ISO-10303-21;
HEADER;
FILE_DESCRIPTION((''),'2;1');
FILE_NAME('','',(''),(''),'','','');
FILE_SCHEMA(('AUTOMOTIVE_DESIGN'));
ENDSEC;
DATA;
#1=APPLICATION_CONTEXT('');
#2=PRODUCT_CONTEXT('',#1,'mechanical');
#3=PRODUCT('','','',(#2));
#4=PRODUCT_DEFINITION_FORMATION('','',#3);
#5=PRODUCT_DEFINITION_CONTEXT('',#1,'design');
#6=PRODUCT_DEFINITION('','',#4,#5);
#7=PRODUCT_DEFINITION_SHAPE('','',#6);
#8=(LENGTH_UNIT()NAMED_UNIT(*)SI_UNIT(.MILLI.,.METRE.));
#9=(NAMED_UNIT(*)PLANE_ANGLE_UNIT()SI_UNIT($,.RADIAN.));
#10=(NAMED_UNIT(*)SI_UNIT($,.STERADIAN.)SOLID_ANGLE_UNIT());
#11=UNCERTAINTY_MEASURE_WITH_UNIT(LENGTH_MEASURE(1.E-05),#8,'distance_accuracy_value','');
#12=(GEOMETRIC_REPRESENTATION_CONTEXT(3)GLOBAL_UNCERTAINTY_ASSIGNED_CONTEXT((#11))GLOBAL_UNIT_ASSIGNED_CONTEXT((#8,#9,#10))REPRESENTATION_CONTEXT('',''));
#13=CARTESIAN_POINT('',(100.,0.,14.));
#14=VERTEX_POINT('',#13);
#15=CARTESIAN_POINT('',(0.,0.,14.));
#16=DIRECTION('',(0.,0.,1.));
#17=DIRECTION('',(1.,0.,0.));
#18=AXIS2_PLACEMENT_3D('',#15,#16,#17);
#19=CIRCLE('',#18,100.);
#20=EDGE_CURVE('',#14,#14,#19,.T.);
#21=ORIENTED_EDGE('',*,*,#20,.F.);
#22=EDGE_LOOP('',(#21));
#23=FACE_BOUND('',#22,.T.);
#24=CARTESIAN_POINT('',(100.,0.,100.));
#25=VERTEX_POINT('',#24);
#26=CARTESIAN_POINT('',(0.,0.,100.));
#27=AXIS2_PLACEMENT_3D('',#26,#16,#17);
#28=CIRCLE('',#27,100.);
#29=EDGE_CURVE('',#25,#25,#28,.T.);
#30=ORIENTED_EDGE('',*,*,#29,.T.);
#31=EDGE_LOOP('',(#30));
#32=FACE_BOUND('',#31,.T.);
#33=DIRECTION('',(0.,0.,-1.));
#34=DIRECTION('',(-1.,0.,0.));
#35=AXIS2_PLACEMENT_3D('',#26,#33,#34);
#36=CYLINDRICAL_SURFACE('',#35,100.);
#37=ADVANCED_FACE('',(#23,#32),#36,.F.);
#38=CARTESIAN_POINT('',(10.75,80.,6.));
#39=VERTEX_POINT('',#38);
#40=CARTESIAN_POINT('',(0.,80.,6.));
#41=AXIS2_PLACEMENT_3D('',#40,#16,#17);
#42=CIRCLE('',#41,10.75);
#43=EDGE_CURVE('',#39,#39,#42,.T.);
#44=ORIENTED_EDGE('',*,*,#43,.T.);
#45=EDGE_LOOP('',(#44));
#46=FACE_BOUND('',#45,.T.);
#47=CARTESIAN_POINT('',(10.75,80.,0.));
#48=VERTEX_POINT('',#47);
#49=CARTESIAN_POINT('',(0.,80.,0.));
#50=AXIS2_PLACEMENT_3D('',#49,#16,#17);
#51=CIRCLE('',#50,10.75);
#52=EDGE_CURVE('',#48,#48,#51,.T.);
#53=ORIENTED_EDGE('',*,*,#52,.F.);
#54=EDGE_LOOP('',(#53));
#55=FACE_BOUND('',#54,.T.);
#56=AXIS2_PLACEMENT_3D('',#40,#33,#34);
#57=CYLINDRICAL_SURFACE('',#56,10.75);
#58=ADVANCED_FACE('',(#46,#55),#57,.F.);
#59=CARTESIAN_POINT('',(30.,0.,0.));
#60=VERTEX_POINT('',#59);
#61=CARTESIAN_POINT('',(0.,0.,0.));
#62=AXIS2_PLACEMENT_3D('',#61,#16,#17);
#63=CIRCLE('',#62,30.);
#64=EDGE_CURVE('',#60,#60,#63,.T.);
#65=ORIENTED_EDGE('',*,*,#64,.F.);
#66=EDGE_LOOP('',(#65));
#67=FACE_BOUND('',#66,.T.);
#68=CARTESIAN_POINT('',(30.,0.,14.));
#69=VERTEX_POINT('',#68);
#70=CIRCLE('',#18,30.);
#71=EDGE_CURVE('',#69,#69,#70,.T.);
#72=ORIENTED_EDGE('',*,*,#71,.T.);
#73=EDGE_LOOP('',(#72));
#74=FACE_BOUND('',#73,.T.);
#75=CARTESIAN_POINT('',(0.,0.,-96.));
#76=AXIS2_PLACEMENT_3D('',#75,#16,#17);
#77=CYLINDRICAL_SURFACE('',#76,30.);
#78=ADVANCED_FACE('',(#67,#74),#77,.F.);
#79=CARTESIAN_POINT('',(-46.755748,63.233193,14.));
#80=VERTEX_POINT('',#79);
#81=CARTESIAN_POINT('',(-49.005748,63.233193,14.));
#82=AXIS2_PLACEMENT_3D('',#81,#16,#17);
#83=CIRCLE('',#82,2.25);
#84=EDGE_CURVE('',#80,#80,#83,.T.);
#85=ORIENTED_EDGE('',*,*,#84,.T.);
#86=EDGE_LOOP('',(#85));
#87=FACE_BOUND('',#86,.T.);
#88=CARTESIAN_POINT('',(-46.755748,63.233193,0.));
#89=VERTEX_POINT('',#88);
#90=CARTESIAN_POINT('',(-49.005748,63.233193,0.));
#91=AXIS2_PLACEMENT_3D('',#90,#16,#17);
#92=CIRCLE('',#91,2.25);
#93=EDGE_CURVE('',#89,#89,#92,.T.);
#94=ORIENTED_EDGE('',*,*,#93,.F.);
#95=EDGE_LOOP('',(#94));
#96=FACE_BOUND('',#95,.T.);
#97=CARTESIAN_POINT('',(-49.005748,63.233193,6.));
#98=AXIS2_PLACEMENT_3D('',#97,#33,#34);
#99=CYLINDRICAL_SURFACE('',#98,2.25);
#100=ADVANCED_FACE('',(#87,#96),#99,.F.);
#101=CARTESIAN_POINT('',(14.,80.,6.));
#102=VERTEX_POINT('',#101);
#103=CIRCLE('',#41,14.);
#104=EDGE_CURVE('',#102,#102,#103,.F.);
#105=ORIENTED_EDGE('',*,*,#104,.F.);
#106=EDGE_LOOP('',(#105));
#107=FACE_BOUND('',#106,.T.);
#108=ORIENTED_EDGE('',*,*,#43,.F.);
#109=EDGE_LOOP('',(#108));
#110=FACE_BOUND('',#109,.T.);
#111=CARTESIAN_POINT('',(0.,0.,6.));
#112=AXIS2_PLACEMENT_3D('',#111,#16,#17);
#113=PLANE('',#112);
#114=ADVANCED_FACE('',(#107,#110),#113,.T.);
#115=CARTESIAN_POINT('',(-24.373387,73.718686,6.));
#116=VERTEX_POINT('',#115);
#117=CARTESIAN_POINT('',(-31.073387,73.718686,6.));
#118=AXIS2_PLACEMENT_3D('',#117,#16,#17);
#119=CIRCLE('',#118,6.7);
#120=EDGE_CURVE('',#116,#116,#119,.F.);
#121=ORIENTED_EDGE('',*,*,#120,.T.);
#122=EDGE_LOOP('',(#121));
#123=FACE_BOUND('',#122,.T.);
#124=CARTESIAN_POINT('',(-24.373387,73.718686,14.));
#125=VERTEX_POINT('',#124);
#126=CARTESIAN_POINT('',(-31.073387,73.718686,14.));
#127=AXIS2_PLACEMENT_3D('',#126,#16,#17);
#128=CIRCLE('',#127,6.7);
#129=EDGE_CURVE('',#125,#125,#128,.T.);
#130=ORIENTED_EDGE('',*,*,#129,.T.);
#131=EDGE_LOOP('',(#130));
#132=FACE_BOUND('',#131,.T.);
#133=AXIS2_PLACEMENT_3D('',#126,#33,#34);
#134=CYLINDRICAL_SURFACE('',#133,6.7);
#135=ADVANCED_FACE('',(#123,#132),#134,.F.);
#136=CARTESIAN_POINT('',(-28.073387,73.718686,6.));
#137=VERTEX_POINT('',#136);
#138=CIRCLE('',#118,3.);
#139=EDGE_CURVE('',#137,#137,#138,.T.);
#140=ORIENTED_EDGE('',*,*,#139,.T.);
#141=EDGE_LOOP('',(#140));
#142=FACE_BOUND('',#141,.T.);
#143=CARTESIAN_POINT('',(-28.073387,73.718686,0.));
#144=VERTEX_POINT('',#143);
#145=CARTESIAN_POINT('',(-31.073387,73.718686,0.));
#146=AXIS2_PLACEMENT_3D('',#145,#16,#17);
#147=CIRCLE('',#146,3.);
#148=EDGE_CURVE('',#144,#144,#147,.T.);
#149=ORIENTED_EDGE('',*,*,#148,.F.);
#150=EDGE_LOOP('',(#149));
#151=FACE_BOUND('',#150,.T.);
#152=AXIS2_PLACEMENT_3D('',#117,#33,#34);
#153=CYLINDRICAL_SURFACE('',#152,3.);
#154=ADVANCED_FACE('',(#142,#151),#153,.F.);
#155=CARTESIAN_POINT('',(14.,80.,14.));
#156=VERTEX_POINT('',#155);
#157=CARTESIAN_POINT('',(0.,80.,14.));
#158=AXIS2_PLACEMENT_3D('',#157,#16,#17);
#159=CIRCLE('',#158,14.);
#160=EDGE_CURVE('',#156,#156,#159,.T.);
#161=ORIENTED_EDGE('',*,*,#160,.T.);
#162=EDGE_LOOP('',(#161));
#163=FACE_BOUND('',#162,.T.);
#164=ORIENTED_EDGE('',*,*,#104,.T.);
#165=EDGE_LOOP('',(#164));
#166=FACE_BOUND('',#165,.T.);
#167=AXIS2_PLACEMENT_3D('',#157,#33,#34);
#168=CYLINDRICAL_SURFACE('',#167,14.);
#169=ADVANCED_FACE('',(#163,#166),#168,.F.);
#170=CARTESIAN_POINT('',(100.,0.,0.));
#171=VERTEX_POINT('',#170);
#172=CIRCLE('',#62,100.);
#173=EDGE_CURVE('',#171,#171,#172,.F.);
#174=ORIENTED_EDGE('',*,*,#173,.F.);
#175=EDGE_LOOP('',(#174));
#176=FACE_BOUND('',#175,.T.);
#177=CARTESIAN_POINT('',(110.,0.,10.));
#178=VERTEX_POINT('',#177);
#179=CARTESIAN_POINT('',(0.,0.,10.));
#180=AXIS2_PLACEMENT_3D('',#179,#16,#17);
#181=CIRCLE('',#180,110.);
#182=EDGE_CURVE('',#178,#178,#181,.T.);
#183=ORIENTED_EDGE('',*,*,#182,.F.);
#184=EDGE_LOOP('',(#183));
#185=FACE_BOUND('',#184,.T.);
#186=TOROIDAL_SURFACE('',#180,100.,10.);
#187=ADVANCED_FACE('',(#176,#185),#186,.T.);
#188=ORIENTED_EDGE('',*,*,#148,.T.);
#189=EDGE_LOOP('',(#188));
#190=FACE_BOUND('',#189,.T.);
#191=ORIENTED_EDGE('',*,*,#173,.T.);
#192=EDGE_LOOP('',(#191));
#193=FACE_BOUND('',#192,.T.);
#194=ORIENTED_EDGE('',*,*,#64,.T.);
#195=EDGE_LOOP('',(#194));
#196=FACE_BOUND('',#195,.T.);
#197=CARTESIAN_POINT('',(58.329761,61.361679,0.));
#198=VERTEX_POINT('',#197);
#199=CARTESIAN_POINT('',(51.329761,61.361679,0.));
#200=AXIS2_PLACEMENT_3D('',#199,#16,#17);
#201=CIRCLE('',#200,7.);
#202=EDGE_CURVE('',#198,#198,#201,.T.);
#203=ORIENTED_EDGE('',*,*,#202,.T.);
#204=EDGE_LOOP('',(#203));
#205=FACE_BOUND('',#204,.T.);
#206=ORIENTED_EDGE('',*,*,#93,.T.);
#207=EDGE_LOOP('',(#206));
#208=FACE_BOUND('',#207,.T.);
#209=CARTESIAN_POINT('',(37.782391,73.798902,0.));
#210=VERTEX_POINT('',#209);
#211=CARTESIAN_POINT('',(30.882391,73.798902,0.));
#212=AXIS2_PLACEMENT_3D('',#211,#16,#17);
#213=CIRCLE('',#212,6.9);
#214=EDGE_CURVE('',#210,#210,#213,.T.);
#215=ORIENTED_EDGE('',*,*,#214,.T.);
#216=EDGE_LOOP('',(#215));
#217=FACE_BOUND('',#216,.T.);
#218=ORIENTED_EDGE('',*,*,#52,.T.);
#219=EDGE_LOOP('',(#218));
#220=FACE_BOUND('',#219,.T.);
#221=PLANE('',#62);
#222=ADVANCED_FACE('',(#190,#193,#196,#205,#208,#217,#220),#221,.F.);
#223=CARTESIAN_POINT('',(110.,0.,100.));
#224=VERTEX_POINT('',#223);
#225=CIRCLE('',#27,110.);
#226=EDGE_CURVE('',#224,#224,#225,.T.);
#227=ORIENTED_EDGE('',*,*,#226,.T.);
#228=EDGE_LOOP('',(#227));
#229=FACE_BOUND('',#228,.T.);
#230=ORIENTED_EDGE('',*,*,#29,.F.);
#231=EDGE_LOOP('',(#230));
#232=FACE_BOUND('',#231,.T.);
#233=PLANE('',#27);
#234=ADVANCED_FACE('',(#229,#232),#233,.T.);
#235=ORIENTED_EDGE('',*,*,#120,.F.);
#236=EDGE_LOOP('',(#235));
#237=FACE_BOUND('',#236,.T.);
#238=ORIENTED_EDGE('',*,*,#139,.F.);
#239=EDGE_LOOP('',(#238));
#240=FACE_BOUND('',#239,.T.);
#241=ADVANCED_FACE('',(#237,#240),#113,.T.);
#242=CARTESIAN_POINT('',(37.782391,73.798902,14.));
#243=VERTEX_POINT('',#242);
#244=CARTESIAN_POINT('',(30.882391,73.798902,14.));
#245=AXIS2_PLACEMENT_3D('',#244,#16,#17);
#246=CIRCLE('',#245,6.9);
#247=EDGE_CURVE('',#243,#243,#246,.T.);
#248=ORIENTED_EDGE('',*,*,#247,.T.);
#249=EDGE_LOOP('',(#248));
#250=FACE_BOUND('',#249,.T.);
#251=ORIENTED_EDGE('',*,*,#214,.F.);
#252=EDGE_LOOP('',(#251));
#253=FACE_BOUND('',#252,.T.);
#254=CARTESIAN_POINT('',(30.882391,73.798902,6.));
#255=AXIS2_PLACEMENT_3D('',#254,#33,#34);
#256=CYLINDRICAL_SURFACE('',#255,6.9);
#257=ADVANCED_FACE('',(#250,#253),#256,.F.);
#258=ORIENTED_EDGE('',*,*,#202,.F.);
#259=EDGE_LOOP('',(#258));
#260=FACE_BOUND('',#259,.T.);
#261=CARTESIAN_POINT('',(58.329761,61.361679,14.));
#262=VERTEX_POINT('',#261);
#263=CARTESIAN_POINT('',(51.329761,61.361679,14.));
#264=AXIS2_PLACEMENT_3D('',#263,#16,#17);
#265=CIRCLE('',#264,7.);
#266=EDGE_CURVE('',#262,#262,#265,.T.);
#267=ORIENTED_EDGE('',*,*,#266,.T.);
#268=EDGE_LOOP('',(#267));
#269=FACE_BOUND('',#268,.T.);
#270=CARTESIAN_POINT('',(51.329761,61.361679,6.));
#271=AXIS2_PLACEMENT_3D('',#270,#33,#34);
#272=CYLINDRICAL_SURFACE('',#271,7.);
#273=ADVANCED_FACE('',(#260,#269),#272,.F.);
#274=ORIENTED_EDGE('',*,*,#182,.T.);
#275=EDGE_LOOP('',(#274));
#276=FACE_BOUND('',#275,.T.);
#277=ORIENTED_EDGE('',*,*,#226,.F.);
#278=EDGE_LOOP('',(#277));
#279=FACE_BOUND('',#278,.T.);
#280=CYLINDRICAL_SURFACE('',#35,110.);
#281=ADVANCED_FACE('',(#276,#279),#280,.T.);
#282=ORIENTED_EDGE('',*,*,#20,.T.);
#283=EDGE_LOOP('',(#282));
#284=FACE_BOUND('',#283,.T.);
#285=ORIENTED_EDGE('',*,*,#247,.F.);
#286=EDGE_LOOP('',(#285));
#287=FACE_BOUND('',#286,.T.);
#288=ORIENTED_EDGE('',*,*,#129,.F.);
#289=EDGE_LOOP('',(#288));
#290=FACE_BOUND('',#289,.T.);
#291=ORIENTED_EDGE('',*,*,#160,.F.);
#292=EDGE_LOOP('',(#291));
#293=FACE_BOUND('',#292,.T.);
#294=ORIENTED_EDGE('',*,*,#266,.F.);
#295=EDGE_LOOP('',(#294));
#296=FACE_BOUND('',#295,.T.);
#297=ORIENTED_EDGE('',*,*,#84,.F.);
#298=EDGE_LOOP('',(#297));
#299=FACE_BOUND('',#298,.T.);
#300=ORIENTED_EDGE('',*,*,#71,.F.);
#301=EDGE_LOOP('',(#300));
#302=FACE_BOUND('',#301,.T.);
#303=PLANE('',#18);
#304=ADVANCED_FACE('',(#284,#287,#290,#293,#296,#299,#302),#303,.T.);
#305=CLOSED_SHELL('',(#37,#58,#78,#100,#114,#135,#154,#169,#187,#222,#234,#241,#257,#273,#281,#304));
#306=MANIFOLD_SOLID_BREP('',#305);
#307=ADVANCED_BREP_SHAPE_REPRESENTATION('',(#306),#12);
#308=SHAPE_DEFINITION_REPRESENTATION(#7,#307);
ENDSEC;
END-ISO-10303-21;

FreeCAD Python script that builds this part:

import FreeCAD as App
import Part
import Sketcher


def edges_at(feature, points):
    """Names of the edges that pass closest to the given points."""
    edges = feature.Shape.Edges
    near = lambda p: min(range(len(edges)), key=lambda i: edges[i].distToShape(Part.Vertex(*p))[0])
    return sorted({f"Edge{near(p) + 1}" for p in points})

doc = App.newDocument("Part")
params = doc.addObject("Spreadsheet::Sheet", "Params")
for row, (alias, value) in enumerate([
    ("sketch1_diameter", "200 mm"),
    ("sketch1_diameter2", "14 mm"),
    ("sketch1_diameter3", "6 mm"),
    ("sketch1_diameter4", "4.5 mm"),
    ("sketch1_diameter5", "21.5 mm"),
    ("pad1_length", "6 mm"),
    ("sketch2_diameter", "220 mm"),
    ("sketch2_diameter2", "200 mm"),
    ("pad2_length", "100 mm"),
    ("fillet_radius", "10 mm"),
    ("sketch3_diameter", "200 mm"),
    ("sketch3_diameter2", "14 mm"),
    ("sketch3_diameter3", "28 mm"),
    ("sketch3_diameter4", "4.5 mm"),
    ("sketch3_diameter5", "13.4 mm"),
    ("pad3_length", "14 mm"),
    ("sketch4_diameter", "60 mm"),
    ("pocket1_length", "110 mm"),
], start=1):
    params.set(f"A{row}", alias)
    params.set(f"B{row}", "=" + value)
    params.setAlias(f"B{row}", alias)

body = doc.addObject("PartDesign::Body", "Body")

# Sketch on XY plane
sketch1 = doc.addObject("Sketcher::SketchObject", "Sketch")
body.addObject(sketch1)
sketch1.AttachmentSupport = (doc.XY_Plane, [""])
sketch1.MapMode = "FlatFace"
sketch1.addGeometry(Part.Circle(App.Vector(0, 0, 0), App.Vector(0, 0, 1), 100), False)
sketch1.addGeometry(Part.Circle(App.Vector(-49, 63.2, 0), App.Vector(0, 0, 1), 2.2), False)
sketch1.addGeometry(Part.Circle(App.Vector(51.3, 61.4, 0), App.Vector(0, 0, 1), 7), False)
sketch1.addGeometry(Part.Circle(App.Vector(-31.1, 73.7, 0), App.Vector(0, 0, 1), 3), False)
sketch1.addGeometry(Part.Circle(App.Vector(0, 80, 0), App.Vector(0, 0, 1), 10.8), False)
sketch1.addGeometry(Part.Circle(App.Vector(30.9, 73.8, 0), App.Vector(0, 0, 1), 6.9), False)
sketch1.addConstraint(Sketcher.Constraint("Coincident", 0, 3, -1, 1))
sketch1.addConstraint(Sketcher.Constraint("PointOnObject", 4, 3, -2))
sketch1.addConstraint(Sketcher.Constraint("Diameter", 0, 200.0))
sketch1.addConstraint(Sketcher.Constraint("Diameter", 2, 14.0))
sketch1.addConstraint(Sketcher.Constraint("Diameter", 3, 6.0))
sketch1.addConstraint(Sketcher.Constraint("Diameter", 1, 4.5))
sketch1.addConstraint(Sketcher.Constraint("Diameter", 4, 21.5))
sketch1.addConstraint(Sketcher.Constraint("Diameter", 5, 13.8))
sketch1.addConstraint(Sketcher.Constraint("DistanceY", -1, 1, 4, 3, 80.0))
sketch1.addConstraint(Sketcher.Constraint("DistanceY", -1, 1, 5, 3, 73.798902))
sketch1.addConstraint(Sketcher.Constraint("DistanceX", -1, 1, 2, 3, 51.329761))
sketch1.addConstraint(Sketcher.Constraint("DistanceY", -1, 1, 2, 3, 61.361679))
sketch1.addConstraint(Sketcher.Constraint("DistanceX", -1, 1, 5, 3, 30.882391))
sketch1.addConstraint(Sketcher.Constraint("DistanceX", 1, 3, 2, 3, 100.335509))
sketch1.addConstraint(Sketcher.Constraint("DistanceX", 1, 3, 3, 3, 17.93236))
sketch1.addConstraint(Sketcher.Constraint("DistanceY", 1, 3, 5, 3, 10.565709))
sketch1.addConstraint(Sketcher.Constraint("DistanceY", -1, 1, 3, 3, 73.718686))
sketch1.setExpression("Constraints[2]", "Params.sketch1_diameter")
sketch1.setExpression("Constraints[3]", "Params.sketch1_diameter2")
sketch1.setExpression("Constraints[4]", "Params.sketch1_diameter3")
sketch1.setExpression("Constraints[5]", "Params.sketch1_diameter4")
sketch1.setExpression("Constraints[6]", "Params.sketch1_diameter5")
pad1 = doc.addObject("PartDesign::Pad", "Pad")
body.addObject(pad1)
pad1.Profile = sketch1
pad1.setExpression("Length", "Params.pad1_length")

# Sketch on XY plane
sketch2 = doc.addObject("Sketcher::SketchObject", "Sketch001")
body.addObject(sketch2)
sketch2.AttachmentSupport = (doc.XY_Plane, [""])
sketch2.MapMode = "FlatFace"
sketch2.addGeometry(Part.Circle(App.Vector(0, 0, 0), App.Vector(0, 0, 1), 110), False)
sketch2.addGeometry(Part.Circle(App.Vector(0, 0, 0), App.Vector(0, 0, 1), 100), False)
sketch2.addConstraint(Sketcher.Constraint("Coincident", 0, 3, -1, 1))
sketch2.addConstraint(Sketcher.Constraint("Coincident", 1, 3, -1, 1))
sketch2.addConstraint(Sketcher.Constraint("Diameter", 0, 220.0))
sketch2.addConstraint(Sketcher.Constraint("Diameter", 1, 200.0))
sketch2.setExpression("Constraints[2]", "Params.sketch2_diameter")
sketch2.setExpression("Constraints[3]", "Params.sketch2_diameter2")
pad2 = doc.addObject("PartDesign::Pad", "Pad001")
body.addObject(pad2)
pad2.Profile = sketch2
pad2.setExpression("Length", "Params.pad2_length")
doc.recompute()

fillet = doc.addObject("PartDesign::Fillet", "Fillet")
body.addObject(fillet)
fillet.Base = (pad2, edges_at(pad2, [(-110, 0, 0)]))
fillet.setExpression("Radius", "Params.fillet_radius")

# Sketch on XY plane
sketch3 = doc.addObject("Sketcher::SketchObject", "Sketch002")
body.addObject(sketch3)
sketch3.AttachmentSupport = (doc.XY_Plane, [""])
sketch3.MapMode = "FlatFace"
sketch3.addGeometry(Part.Circle(App.Vector(0, 0, 0), App.Vector(0, 0, 1), 100), False)
sketch3.addGeometry(Part.Circle(App.Vector(-49, 63.2, 0), App.Vector(0, 0, 1), 2.2), False)
sketch3.addGeometry(Part.Circle(App.Vector(-31.1, 73.7, 0), App.Vector(0, 0, 1), 6.7), False)
sketch3.addGeometry(Part.Circle(App.Vector(51.3, 61.4, 0), App.Vector(0, 0, 1), 7), False)
sketch3.addGeometry(Part.Circle(App.Vector(30.9, 73.8, 0), App.Vector(0, 0, 1), 6.9), False)
sketch3.addGeometry(Part.Circle(App.Vector(0, 80, 0), App.Vector(0, 0, 1), 14), False)
sketch3.addConstraint(Sketcher.Constraint("Coincident", 0, 3, -1, 1))
sketch3.addConstraint(Sketcher.Constraint("PointOnObject", 5, 3, -2))
sketch3.addConstraint(Sketcher.Constraint("Diameter", 0, 200.0))
sketch3.addConstraint(Sketcher.Constraint("Diameter", 3, 14.0))
sketch3.addConstraint(Sketcher.Constraint("Diameter", 5, 28.0))
sketch3.addConstraint(Sketcher.Constraint("Diameter", 1, 4.5))
sketch3.addConstraint(Sketcher.Constraint("Diameter", 2, 13.4))
sketch3.addConstraint(Sketcher.Constraint("Diameter", 4, 13.8))
sketch3.addConstraint(Sketcher.Constraint("DistanceY", -1, 1, 5, 3, 80.0))
sketch3.addConstraint(Sketcher.Constraint("DistanceY", -1, 1, 4, 3, 73.798902))
sketch3.addConstraint(Sketcher.Constraint("DistanceX", -1, 1, 3, 3, 51.329761))
sketch3.addConstraint(Sketcher.Constraint("DistanceY", -1, 1, 3, 3, 61.361679))
sketch3.addConstraint(Sketcher.Constraint("DistanceX", -1, 1, 4, 3, 30.882391))
sketch3.addConstraint(Sketcher.Constraint("DistanceX", 1, 3, 2, 3, 17.93236))
sketch3.addConstraint(Sketcher.Constraint("DistanceX", 2, 3, 3, 3, 82.403148))
sketch3.addConstraint(Sketcher.Constraint("DistanceY", 1, 3, 4, 3, 10.565709))
sketch3.addConstraint(Sketcher.Constraint("DistanceY", -1, 1, 2, 3, 73.718686))
sketch3.setExpression("Constraints[2]", "Params.sketch3_diameter")
sketch3.setExpression("Constraints[3]", "Params.sketch3_diameter2")
sketch3.setExpression("Constraints[4]", "Params.sketch3_diameter3")
sketch3.setExpression("Constraints[5]", "Params.sketch3_diameter4")
sketch3.setExpression("Constraints[6]", "Params.sketch3_diameter5")
pad3 = doc.addObject("PartDesign::Pad", "Pad002")
body.addObject(pad3)
pad3.Profile = sketch3
pad3.setExpression("Length", "Params.pad3_length")

# Sketch on XY plane
sketch4 = doc.addObject("Sketcher::SketchObject", "Sketch003")
body.addObject(sketch4)
sketch4.AttachmentSupport = (doc.XY_Plane, [""])
sketch4.MapMode = "FlatFace"
sketch4.AttachmentOffset = App.Placement(App.Vector(0, 0, 14), App.Rotation())
sketch4.addGeometry(Part.Circle(App.Vector(0, 0, 0), App.Vector(0, 0, 1), 30), False)
sketch4.addConstraint(Sketcher.Constraint("Coincident", 0, 3, -1, 1))
sketch4.addConstraint(Sketcher.Constraint("Diameter", 0, 60.0))
sketch4.setExpression("Constraints[1]", "Params.sketch4_diameter")
pocket1 = doc.addObject("PartDesign::Pocket", "Pocket")
body.addObject(pocket1)
pocket1.Profile = sketch4
pocket1.setExpression("Length", "Params.pocket1_length")

doc.recompute()
